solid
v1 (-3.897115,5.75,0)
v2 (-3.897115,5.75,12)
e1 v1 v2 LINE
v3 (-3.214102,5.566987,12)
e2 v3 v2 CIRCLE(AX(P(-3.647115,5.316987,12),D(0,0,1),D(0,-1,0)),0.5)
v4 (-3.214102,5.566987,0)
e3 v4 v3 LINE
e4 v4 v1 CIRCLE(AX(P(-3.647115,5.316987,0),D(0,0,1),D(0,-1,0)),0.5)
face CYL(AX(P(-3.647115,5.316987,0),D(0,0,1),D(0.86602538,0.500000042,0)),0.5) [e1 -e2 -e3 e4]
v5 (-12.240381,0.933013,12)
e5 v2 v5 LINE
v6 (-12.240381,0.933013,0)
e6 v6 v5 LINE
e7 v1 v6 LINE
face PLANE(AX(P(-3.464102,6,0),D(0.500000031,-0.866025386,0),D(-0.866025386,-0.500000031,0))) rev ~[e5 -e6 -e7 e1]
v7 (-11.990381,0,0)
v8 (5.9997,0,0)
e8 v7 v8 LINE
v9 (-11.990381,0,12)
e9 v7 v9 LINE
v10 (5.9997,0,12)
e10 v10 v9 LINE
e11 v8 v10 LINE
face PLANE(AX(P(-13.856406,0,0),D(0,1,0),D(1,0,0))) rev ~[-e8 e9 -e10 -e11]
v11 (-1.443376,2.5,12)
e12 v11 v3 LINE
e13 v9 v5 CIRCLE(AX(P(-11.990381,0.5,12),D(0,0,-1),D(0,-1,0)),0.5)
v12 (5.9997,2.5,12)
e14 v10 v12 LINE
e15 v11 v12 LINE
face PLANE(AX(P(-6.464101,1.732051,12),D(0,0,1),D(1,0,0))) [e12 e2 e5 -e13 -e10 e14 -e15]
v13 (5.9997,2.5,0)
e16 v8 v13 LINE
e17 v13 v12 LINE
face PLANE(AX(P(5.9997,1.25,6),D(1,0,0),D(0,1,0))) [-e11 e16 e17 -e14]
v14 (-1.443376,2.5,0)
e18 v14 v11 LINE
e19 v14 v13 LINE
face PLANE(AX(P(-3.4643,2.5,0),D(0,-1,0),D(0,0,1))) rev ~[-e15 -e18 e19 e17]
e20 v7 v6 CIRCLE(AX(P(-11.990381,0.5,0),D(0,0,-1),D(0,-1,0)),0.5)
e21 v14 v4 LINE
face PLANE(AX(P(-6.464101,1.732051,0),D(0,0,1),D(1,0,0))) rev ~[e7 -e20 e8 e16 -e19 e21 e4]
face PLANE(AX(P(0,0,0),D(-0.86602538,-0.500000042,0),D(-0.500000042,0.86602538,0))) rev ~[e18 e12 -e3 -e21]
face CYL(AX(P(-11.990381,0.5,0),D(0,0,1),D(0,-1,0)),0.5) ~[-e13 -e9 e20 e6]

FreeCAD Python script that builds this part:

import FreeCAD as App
import Part
import Sketcher
from FreeCAD import Vector
Q = App.Units.Quantity


def edges_at(feature, points):
    """Names of the edges that pass closest to the given points."""
    edges = feature.Shape.Edges
    near = lambda p: min(range(len(edges)), key=lambda i: edges[i].distToShape(Part.Vertex(*p))[0])
    return sorted({f"Edge{near(p) + 1}" for p in points})

doc = App.newDocument("Part")
params = doc.addObject("Spreadsheet::Sheet", "Params")
for row, (alias, value) in enumerate([
    ("sketch1_length", "11.999999 mm"),
    ("pad1_length", "12 mm"),
    ("sketch2_height", "12 mm"),
    ("sketch2_width", "2.5 mm"),
    ("pad2_length", "9.464 mm"),
    ("fillet_radius", "0.5 mm"),
], start=1):
    params.set(f"A{row}", alias)
    params.set(f"B{row}", "=" + value)
    params.setAlias(f"B{row}", alias)

body = doc.addObject("PartDesign::Body", "Body")

# Sketch on XY plane
sketch1 = body.newObject("Sketcher::SketchObject", "Sketch")
sketch1.AttachmentSupport = (doc.getObject("XY_Plane"), [""])
sketch1.MapMode = "FlatFace"
sketch1.addGeometry([
    Part.LineSegment(Vector(-13.856406, 0, 0), Vector(0, 0, 0)),
    Part.LineSegment(Vector(0, 0, 0), Vector(-3.464102, 6, 0)),
    Part.LineSegment(Vector(-3.464102, 6, 0), Vector(-13.856406, 0, 0)),
], False)
sketch1.addConstraint([
    Sketcher.Constraint("Coincident", 0, 2, 1, 1),
    Sketcher.Constraint("Coincident", 1, 2, 2, 1),
    Sketcher.Constraint("Coincident", 2, 2, 0, 1),
    Sketcher.Constraint("Horizontal", 0),
    Sketcher.Constraint("Coincident", 0, 2, -1, 1),
    Sketcher.Constraint("Perpendicular", 1, 2),
    Sketcher.Constraint("Angle", 1, Q("120.000003 deg")),
    Sketcher.Constraint("Distance", 2, 11.999999),
])
sketch1.setExpression("Constraints[7]", "Params.sketch1_length")
pad1 = body.newObject("PartDesign::Pad", "Pad")
pad1.Profile = sketch1
pad1.setExpression("Length", "Params.pad1_length")

# Sketch on YZ plane
sketch2 = body.newObject("Sketcher::SketchObject", "Sketch001")
sketch2.AttachmentSupport = (doc.getObject("YZ_Plane"), [""])
sketch2.MapMode = "FlatFace"
sketch2.AttachmentOffset = App.Placement(Vector(0, 0, -3.4643), App.Rotation())
sketch2.addGeometry([
    Part.LineSegment(Vector(0, 12, 0), Vector(0, 0, 0)),
    Part.LineSegment(Vector(0, 0, 0), Vector(2.5, 0, 0)),
    Part.LineSegment(Vector(2.5, 0, 0), Vector(2.5, 12, 0)),
    Part.LineSegment(Vector(2.5, 12, 0), Vector(0, 12, 0)),
], False)
sketch2.addConstraint([
    Sketcher.Constraint("Coincident", 0, 2, 1, 1),
    Sketcher.Constraint("Coincident", 1, 2, 2, 1),
    Sketcher.Constraint("Coincident", 2, 2, 3, 1),
    Sketcher.Constraint("Coincident", 3, 2, 0, 1),
    Sketcher.Constraint("Vertical", 0),
    Sketcher.Constraint("Horizontal", 1),
    Sketcher.Constraint("Vertical", 2),
    Sketcher.Constraint("Horizontal", 3),
    Sketcher.Constraint("Coincident", 0, 2, -1, 1),
    Sketcher.Constraint("DistanceY", 0, 2, 0, 1, 12.0),
    Sketcher.Constraint("DistanceX", 1, 1, 1, 2, 2.5),
])
sketch2.setExpression("Constraints[9]", "Params.sketch2_height")
sketch2.setExpression("Constraints[10]", "Params.sketch2_width")
pad2 = body.newObject("PartDesign::Pad", "Pad001")
pad2.Profile = sketch2
pad2.setExpression("Length", "Params.pad2_length")
doc.recompute()

fillet = body.newObject("PartDesign::Fillet", "Fillet")
fillet.Base = (pad2, edges_at(pad2, [(-3.464, 6, 6), (-13.856, 0, 6)]))
fillet.setExpression("Radius", "Params.fillet_radius")

doc.recompute()
